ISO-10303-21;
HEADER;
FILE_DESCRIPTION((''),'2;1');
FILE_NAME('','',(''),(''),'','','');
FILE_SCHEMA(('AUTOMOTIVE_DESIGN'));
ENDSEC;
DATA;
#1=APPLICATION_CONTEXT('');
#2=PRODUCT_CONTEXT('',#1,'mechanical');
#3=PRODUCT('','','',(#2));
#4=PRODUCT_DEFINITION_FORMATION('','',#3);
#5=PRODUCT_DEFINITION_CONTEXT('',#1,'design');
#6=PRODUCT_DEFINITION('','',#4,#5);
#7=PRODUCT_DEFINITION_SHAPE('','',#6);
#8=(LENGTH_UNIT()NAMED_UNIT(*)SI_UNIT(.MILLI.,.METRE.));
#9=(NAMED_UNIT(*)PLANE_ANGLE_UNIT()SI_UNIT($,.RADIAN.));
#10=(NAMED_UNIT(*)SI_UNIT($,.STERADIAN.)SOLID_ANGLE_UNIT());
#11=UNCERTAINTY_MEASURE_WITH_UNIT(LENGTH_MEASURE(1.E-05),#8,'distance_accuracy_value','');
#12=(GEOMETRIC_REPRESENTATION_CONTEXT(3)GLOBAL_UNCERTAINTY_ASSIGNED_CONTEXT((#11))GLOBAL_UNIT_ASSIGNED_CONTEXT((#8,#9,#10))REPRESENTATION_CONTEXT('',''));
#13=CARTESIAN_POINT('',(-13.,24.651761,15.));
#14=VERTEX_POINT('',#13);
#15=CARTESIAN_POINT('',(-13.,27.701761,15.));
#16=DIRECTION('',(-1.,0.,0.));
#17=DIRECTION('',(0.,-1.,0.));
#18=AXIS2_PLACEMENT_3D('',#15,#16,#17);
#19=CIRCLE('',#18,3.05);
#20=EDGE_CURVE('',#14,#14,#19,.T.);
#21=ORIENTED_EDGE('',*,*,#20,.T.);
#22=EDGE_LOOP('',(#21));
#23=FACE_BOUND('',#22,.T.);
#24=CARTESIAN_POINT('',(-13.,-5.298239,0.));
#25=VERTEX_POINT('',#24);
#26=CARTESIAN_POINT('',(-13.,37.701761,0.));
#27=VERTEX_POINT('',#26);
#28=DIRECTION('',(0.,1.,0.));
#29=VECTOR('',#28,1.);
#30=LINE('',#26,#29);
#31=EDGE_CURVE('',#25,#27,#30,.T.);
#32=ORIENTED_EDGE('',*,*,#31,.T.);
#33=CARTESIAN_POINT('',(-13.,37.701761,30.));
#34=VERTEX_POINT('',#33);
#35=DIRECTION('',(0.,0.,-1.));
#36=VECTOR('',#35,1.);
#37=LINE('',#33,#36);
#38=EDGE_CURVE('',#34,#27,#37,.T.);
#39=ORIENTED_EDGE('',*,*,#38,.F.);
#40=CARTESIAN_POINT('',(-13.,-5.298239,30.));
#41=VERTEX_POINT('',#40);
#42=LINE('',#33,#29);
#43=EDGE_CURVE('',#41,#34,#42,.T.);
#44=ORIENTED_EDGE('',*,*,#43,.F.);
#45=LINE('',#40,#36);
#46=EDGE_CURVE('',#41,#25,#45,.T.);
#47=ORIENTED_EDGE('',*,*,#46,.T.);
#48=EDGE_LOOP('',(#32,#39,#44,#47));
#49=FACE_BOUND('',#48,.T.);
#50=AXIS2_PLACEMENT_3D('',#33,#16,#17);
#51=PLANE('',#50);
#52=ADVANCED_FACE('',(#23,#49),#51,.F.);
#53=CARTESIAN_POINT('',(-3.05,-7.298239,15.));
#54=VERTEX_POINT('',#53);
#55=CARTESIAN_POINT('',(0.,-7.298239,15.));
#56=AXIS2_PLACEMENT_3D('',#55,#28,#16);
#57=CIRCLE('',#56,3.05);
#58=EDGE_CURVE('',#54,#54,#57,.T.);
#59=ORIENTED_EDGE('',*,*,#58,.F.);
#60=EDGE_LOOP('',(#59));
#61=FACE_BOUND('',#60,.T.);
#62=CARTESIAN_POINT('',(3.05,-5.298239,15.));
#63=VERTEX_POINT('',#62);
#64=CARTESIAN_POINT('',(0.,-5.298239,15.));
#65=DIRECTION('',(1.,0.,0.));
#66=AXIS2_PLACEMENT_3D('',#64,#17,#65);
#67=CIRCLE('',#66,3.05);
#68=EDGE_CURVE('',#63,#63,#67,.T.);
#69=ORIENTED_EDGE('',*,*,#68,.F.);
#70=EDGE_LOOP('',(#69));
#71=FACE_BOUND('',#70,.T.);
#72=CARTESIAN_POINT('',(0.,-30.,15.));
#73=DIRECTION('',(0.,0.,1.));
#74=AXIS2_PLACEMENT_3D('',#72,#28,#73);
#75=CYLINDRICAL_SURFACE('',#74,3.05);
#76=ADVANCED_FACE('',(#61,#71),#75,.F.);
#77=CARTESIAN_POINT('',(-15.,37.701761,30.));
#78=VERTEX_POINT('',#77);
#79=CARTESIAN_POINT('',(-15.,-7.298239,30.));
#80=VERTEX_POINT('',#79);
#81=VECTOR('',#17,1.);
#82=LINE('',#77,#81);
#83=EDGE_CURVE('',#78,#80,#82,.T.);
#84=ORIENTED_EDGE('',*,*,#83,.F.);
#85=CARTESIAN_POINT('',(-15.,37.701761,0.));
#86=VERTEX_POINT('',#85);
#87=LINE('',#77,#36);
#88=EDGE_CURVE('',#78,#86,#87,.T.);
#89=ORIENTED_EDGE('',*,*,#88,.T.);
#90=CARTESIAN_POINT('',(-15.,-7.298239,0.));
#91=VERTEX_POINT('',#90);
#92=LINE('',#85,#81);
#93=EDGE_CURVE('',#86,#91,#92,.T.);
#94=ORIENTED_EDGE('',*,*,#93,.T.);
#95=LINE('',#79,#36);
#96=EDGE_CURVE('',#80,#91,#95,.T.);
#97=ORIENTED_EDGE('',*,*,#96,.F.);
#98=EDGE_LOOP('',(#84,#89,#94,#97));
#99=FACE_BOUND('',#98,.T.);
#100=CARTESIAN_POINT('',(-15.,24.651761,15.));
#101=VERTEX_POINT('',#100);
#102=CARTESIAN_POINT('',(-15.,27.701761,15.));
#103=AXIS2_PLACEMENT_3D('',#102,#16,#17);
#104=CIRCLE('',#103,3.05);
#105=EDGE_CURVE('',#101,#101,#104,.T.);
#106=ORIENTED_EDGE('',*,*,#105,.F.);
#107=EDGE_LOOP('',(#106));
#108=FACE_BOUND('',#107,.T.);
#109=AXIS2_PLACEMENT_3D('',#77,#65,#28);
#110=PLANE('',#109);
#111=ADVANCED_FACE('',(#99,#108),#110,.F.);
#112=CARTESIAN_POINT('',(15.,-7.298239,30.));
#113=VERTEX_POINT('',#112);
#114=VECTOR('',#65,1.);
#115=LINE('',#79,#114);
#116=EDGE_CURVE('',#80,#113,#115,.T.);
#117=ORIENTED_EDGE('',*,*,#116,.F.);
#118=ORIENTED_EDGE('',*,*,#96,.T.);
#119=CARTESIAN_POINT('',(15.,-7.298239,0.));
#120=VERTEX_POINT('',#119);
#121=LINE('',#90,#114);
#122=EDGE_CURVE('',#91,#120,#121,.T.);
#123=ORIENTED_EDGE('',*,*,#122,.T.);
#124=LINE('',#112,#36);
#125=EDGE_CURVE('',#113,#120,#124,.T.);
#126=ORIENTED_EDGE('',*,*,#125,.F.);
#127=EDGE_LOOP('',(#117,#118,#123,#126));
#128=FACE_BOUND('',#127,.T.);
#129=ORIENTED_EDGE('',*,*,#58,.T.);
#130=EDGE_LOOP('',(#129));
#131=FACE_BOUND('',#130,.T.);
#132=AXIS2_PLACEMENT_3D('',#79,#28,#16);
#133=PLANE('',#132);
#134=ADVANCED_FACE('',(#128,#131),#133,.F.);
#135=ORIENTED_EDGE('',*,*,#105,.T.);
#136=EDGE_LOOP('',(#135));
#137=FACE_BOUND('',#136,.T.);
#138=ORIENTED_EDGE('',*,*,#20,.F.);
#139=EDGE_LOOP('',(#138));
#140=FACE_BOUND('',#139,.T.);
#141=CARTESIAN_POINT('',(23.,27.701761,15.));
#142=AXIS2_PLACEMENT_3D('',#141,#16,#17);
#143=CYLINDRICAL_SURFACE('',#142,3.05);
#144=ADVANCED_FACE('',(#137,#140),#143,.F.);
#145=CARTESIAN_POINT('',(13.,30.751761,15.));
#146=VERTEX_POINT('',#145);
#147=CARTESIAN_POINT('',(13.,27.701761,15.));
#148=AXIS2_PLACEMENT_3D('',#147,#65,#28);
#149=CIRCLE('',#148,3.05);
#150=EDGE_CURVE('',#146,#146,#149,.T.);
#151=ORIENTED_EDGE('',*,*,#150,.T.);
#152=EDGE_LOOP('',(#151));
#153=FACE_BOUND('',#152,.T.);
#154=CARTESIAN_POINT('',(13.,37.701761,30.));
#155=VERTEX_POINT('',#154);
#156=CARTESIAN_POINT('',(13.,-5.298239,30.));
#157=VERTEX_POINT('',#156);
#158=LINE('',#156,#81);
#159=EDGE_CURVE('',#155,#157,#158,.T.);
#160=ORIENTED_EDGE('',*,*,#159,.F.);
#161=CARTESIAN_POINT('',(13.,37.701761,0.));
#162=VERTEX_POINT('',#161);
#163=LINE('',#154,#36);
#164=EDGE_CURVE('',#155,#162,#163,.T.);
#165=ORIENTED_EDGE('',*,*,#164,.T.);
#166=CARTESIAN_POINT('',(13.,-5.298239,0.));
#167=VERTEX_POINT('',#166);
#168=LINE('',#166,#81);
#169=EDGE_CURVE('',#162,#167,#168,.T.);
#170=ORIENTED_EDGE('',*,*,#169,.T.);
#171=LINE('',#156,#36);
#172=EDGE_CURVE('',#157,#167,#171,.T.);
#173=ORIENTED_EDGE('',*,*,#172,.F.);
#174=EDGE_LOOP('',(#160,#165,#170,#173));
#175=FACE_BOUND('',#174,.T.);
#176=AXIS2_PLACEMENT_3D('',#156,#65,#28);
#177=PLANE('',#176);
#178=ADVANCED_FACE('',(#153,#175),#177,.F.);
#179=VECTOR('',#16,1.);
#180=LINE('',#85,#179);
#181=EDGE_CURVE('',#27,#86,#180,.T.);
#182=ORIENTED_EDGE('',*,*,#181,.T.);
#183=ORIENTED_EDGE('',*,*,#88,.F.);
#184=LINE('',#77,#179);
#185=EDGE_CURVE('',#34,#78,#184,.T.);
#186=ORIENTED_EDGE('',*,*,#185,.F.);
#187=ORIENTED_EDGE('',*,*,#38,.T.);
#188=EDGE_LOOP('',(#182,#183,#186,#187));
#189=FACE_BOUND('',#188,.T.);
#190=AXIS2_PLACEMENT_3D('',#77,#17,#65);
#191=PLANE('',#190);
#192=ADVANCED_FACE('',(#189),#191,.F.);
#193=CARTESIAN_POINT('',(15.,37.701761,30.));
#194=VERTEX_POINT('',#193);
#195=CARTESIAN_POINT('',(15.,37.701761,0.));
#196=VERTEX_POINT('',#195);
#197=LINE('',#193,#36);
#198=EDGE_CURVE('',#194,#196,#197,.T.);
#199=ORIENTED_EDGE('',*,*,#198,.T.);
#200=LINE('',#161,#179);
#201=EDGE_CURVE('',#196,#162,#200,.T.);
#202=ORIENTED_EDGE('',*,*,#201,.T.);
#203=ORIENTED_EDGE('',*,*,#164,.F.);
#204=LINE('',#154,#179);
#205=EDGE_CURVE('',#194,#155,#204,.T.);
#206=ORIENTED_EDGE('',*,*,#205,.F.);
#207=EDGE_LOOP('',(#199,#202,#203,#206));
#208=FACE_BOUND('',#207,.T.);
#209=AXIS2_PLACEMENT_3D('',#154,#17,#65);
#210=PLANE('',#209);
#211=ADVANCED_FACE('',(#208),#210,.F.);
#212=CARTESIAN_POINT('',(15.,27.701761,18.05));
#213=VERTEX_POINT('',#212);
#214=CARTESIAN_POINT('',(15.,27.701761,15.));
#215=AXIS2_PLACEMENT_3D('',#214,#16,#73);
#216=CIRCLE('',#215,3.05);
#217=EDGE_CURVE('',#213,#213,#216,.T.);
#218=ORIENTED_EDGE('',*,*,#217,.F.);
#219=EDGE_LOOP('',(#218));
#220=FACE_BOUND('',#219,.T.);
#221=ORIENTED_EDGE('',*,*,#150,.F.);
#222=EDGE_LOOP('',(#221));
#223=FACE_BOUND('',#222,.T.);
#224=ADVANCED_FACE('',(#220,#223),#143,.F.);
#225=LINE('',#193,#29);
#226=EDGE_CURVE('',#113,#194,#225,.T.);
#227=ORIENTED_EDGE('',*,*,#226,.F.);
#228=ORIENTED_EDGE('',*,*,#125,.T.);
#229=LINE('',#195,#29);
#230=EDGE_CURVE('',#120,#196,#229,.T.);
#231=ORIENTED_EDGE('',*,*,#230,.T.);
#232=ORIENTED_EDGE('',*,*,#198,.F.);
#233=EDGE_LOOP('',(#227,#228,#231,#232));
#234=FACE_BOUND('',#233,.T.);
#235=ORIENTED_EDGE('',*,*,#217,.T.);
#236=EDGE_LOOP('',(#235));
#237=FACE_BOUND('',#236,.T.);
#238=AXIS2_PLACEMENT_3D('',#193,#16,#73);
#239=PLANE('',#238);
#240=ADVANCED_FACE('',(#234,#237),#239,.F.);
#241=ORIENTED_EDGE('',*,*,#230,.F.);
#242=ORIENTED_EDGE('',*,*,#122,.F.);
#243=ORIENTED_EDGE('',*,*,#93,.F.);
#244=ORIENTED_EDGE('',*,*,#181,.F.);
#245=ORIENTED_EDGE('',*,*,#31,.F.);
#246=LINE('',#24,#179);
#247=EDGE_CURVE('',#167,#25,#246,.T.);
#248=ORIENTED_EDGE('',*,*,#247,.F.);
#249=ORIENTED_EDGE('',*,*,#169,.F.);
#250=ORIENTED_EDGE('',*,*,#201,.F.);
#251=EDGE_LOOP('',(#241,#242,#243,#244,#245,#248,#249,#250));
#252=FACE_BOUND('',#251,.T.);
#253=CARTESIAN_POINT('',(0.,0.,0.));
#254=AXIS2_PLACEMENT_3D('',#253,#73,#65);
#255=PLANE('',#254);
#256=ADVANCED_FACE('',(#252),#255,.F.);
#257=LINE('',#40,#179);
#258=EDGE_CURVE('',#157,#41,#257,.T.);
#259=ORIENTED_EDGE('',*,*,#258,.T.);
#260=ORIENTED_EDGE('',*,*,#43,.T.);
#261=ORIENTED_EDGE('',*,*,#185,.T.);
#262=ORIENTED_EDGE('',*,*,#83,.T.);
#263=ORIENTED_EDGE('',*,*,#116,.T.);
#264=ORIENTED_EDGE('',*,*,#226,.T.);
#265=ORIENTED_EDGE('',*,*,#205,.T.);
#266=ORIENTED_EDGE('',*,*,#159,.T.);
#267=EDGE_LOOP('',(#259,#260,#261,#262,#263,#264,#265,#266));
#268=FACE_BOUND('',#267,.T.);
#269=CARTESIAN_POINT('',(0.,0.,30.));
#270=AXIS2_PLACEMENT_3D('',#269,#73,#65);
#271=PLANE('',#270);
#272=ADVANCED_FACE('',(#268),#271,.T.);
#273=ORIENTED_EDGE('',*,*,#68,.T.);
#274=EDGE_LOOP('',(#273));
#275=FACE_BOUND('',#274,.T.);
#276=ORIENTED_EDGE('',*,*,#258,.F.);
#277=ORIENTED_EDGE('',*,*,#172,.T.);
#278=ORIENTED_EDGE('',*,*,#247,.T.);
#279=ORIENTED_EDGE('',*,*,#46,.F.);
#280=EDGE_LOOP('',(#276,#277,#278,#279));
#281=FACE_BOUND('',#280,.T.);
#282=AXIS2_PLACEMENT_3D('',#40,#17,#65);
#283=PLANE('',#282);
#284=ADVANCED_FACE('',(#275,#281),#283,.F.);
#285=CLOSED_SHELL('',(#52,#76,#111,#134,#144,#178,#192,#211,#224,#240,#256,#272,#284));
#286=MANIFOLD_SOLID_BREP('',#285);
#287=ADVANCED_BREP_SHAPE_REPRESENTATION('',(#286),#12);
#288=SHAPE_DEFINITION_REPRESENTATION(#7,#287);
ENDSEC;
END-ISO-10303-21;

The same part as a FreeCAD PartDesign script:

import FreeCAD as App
import Part
import Sketcher
from FreeCAD import Vector
Q = App.Units.Quantity

doc = App.newDocument("Part")
body = doc.addObject("PartDesign::Body", "Body")

sketch1 = body.newObject("Sketcher::SketchObject", "Sketch")
sketch1.AttachmentSupport = (doc.getObject("XY_Plane"), [""])
sketch1.MapMode = "FlatFace"
sketch1.addGeometry([
    Part.LineSegment(Vector(-13, 37.7, 0), Vector(-15, 37.7, 0)),
    Part.LineSegment(Vector(-15, 37.7, 0), Vector(-15, -7.3, 0)),
    Part.LineSegment(Vector(-15, -7.3, 0), Vector(15, -7.3, 0)),
    Part.LineSegment(Vector(15, -7.3, 0), Vector(15, 37.7, 0)),
    Part.LineSegment(Vector(15, 37.7, 0), Vector(13, 37.7, 0)),
    Part.LineSegment(Vector(13, 37.7, 0), Vector(13, -5.3, 0)),
    Part.LineSegment(Vector(13, -5.3, 0), Vector(-13, -5.3, 0)),
    Part.LineSegment(Vector(-13, -5.3, 0), Vector(-13, 37.7, 0)),
], False)
sketch1.addConstraint([
    Sketcher.Constraint("Coincident", 0, 2, 1, 1),
    Sketcher.Constraint("Coincident", 1, 2, 2, 1),
    Sketcher.Constraint("Coincident", 2, 2, 3, 1),
    Sketcher.Constraint("Coincident", 3, 2, 4, 1),
    Sketcher.Constraint("Coincident", 4, 2, 5, 1),
    Sketcher.Constraint("Coincident", 5, 2, 6, 1),
    Sketcher.Constraint("Coincident", 6, 2, 7, 1),
    Sketcher.Constraint("Coincident", 7, 2, 0, 1),
    Sketcher.Constraint("Horizontal", 0),
    Sketcher.Constraint("Vertical", 1),
    Sketcher.Constraint("Horizontal", 2),
    Sketcher.Constraint("Vertical", 3),
    Sketcher.Constraint("Horizontal", 4),
    Sketcher.Constraint("Vertical", 5),
    Sketcher.Constraint("Horizontal", 6),
    Sketcher.Constraint("Vertical", 7),
    Sketcher.Constraint("Symmetric", 0, 2, 3, 2, -2),
    Sketcher.Constraint("Equal", 0, 4),
    Sketcher.Constraint("DistanceX", 0, 2, 0, 1, Q("2 mm")),
    Sketcher.Constraint("DistanceX", 2, 1, 2, 2, Q("30 mm")),
    Sketcher.Constraint("DistanceY", 1, 2, 1, 1, Q("45 mm")),
    Sketcher.Constraint("DistanceY", 5, 2, 5, 1, Q("43 mm")),
    Sketcher.Constraint("DistanceY", -1, 1, 0, 2, Q("37.701761 mm")),
])
pad1 = body.newObject("PartDesign::Pad", "Pad")
pad1.Profile = sketch1
pad1.Length = 30

sketch2 = body.newObject("Sketcher::SketchObject", "Sketch001")
sketch2.AttachmentSupport = (doc.getObject("XZ_Plane"), [""])
sketch2.MapMode = "FlatFace"
sketch2.addGeometry(Part.Circle(Vector(0, 15, 0), Vector(0, 0, 1), 3), False)
sketch2.addConstraint([
    Sketcher.Constraint("PointOnObject", 0, 3, -2),
    Sketcher.Constraint("Diameter", 0, Q("6.1 mm")),
    Sketcher.Constraint("DistanceY", -1, 1, 0, 3, Q("15 mm")),
])
pocket1 = body.newObject("PartDesign::Pocket", "Pocket")
pocket1.Profile = sketch2
pocket1.Length = 30
pocket1.Reversed = True

sketch3 = body.newObject("Sketcher::SketchObject", "Sketch002")
sketch3.AttachmentSupport = (doc.getObject("YZ_Plane"), [""])
sketch3.MapMode = "FlatFace"
sketch3.AttachmentOffset = App.Placement(Vector(0, 0, -15), App.Rotation())
sketch3.addGeometry(Part.Circle(Vector(27.7, 15, 0), Vector(0, 0, 1), 3), False)
sketch3.addConstraint([
    Sketcher.Constraint("Diameter", 0, Q("6.1 mm")),
    Sketcher.Constraint("DistanceY", -1, 1, 0, 3, Q("15 mm")),
    Sketcher.Constraint("DistanceX", -1, 1, 0, 3, Q("27.701761 mm")),
])
pocket2 = body.newObject("PartDesign::Pocket", "Pocket001")
pocket2.Profile = sketch3
pocket2.Length = 38
pocket2.Reversed = True

doc.recompute()
